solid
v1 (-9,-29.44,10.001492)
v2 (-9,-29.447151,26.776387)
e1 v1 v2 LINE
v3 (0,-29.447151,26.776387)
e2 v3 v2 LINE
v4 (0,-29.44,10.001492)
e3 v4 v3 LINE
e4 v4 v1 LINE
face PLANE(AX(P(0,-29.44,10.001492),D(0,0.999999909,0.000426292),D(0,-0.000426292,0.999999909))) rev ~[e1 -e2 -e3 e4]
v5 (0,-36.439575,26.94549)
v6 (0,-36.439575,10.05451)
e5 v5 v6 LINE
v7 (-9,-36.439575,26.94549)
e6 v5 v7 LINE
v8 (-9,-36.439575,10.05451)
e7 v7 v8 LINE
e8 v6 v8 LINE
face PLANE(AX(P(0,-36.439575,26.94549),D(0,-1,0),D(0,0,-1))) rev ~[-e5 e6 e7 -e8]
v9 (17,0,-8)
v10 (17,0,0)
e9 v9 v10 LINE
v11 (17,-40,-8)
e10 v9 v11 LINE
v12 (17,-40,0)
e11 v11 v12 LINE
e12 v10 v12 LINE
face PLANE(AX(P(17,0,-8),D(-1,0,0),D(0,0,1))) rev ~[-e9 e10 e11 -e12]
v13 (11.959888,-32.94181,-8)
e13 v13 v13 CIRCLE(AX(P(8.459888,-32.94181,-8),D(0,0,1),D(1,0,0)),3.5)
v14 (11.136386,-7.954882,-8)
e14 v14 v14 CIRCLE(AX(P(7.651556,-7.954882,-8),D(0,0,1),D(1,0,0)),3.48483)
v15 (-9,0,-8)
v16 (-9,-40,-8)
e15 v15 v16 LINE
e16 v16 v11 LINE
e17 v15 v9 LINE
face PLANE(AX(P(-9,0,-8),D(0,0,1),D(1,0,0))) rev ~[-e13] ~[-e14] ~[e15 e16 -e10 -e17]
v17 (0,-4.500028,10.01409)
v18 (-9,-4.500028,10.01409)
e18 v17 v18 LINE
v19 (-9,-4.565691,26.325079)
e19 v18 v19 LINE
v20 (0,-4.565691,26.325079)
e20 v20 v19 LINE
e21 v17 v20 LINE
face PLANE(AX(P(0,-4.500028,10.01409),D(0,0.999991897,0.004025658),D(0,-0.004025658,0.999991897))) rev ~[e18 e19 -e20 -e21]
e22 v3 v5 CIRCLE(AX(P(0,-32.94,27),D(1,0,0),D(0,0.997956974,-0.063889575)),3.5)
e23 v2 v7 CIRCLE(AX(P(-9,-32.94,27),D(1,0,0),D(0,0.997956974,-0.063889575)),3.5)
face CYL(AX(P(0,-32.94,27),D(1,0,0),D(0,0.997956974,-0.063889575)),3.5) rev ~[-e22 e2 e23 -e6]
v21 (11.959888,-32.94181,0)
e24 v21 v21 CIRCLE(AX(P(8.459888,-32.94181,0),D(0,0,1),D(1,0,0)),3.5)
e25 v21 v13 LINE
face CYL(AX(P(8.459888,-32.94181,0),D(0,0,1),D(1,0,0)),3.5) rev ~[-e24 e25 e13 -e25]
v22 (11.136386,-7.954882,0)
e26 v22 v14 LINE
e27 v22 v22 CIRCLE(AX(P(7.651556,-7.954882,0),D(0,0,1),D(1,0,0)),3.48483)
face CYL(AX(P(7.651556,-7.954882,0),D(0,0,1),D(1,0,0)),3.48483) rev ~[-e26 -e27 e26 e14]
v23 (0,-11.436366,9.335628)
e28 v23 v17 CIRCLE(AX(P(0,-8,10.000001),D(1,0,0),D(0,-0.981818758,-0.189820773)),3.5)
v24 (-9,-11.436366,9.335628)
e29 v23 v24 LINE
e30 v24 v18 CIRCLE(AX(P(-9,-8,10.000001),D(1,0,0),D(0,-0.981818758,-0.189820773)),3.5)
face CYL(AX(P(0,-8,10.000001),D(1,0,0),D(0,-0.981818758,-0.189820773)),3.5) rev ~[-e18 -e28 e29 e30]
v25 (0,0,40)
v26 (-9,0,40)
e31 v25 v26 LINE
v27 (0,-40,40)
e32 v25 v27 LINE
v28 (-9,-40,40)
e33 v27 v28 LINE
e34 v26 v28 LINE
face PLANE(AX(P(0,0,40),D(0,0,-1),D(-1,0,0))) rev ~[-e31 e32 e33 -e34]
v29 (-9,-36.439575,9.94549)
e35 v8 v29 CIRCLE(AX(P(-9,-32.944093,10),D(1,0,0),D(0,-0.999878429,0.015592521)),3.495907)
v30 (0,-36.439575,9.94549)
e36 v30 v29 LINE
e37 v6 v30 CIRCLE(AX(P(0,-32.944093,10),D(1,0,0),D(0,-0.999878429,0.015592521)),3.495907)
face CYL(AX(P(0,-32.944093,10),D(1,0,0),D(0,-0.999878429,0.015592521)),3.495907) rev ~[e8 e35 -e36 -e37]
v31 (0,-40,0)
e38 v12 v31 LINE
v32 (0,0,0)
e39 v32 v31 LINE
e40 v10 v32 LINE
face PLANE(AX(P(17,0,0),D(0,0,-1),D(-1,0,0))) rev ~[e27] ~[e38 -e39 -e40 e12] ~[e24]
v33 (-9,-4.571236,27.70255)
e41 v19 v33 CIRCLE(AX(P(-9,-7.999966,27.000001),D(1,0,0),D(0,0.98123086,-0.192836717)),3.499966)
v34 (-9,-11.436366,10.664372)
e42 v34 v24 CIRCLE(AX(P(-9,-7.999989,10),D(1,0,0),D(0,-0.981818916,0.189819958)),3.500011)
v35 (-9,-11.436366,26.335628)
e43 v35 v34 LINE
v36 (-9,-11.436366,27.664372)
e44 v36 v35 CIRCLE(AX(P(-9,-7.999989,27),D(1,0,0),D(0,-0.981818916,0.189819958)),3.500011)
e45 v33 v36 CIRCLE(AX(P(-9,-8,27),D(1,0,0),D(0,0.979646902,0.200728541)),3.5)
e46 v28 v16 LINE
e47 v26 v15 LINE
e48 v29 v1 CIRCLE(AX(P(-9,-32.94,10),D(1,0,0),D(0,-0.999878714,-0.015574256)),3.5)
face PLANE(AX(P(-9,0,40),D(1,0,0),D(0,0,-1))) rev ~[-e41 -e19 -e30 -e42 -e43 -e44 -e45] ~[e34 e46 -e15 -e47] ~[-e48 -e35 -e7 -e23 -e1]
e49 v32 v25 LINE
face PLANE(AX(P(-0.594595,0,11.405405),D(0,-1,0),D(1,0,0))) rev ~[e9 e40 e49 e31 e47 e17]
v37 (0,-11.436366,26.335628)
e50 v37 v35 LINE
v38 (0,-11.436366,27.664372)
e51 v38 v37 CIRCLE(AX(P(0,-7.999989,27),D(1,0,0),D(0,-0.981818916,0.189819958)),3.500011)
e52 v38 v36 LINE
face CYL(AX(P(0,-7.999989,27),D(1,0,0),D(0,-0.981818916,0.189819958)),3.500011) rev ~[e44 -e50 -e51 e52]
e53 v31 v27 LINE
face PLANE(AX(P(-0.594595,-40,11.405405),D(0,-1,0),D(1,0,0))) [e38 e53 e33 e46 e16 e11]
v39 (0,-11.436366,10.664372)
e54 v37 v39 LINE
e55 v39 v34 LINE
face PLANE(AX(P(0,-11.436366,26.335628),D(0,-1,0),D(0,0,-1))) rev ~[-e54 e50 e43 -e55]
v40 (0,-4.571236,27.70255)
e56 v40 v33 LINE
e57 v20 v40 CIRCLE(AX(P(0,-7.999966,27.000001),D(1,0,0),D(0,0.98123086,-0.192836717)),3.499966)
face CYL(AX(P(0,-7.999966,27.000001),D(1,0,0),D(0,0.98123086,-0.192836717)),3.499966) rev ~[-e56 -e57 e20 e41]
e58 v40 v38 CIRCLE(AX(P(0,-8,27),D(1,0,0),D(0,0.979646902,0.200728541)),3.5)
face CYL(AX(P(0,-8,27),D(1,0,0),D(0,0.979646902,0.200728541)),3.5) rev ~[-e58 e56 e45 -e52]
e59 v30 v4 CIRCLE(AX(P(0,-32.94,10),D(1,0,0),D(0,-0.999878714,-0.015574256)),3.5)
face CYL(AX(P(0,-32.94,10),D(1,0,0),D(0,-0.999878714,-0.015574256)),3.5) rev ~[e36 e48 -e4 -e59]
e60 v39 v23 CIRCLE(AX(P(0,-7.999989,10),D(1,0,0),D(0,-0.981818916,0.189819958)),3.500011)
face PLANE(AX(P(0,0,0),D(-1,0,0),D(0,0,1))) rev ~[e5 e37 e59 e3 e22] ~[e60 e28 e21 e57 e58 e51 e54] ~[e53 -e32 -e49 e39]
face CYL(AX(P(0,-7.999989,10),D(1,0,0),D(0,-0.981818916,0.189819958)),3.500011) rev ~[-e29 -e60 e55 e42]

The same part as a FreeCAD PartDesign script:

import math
import FreeCAD as App
import Part
import Sketcher
from FreeCAD import Vector

doc = App.newDocument("Part")
body = doc.addObject("PartDesign::Body", "Body")

# Sketch on XZ plane
sketch1 = doc.addObject("Sketcher::SketchObject", "Sketch")
body.addObject(sketch1)
sketch1.AttachmentSupport = (doc.XZ_Plane, [""])
sketch1.MapMode = "FlatFace"
sketch1.addGeometry([
    Part.LineSegment(Vector(0, 0, 0), Vector(0, 40, 0)),  # 0
    Part.LineSegment(Vector(0, 40, 0), Vector(-9, 40, 0)),  # 1
    Part.LineSegment(Vector(-9, 40, 0), Vector(-9, -8, 0)),  # 2
    Part.LineSegment(Vector(-9, -8, 0), Vector(17, -8, 0)),  # 3
    Part.LineSegment(Vector(17, -8, 0), Vector(17, 0, 0)),  # 4
    Part.LineSegment(Vector(17, 0, 0), Vector(0, 0, 0)),  # 5
], False)
sketch1.addConstraint([
    Sketcher.Constraint("Coincident", 0, 2, 1, 1),
    Sketcher.Constraint("Coincident", 1, 2, 2, 1),
    Sketcher.Constraint("Coincident", 2, 2, 3, 1),
    Sketcher.Constraint("Coincident", 3, 2, 4, 1),
    Sketcher.Constraint("Coincident", 4, 2, 5, 1),
    Sketcher.Constraint("Coincident", 5, 2, 0, 1),
    Sketcher.Constraint("Vertical", 0),
    Sketcher.Constraint("Horizontal", 1),
    Sketcher.Constraint("Vertical", 2),
    Sketcher.Constraint("Horizontal", 3),
    Sketcher.Constraint("Vertical", 4),
    Sketcher.Constraint("Horizontal", 5),
    Sketcher.Constraint("Coincident", 5, 2, -1, 1),
    Sketcher.Constraint("DistanceX", 1, 2, 1, 1, 9.0),
    Sketcher.Constraint("DistanceX", 3, 1, 3, 2, 26.0),
    Sketcher.Constraint("DistanceY", 0, 1, 0, 2, 40.0),
    Sketcher.Constraint("DistanceY", 2, 2, 2, 1, 48.0),
])
pad1 = doc.addObject("PartDesign::Pad", "Pad")
body.addObject(pad1)
pad1.Profile = sketch1
pad1.Length = 40

# Sketch on XY plane
sketch2 = doc.addObject("Sketcher::SketchObject", "Sketch001")
body.addObject(sketch2)
sketch2.AttachmentSupport = (doc.XY_Plane, [""])
sketch2.MapMode = "FlatFace"
sketch2.addGeometry([
    Part.Circle(Vector(8.5, -32.9, 0), Vector(0, 0, 1), 3.5),
    Part.Circle(Vector(7.7, -8, 0), Vector(0, 0, 1), 3.5),
], False)
sketch2.addConstraint([
    Sketcher.Constraint("Diameter", 0, 7.0),
    Sketcher.Constraint("Diameter", 1, 6.96966),
    Sketcher.Constraint("DistanceY", 0, 3, -1, 1, 32.94181),
    Sketcher.Constraint("DistanceY", 1, 3, -1, 1, 7.954882),
    Sketcher.Constraint("DistanceX", 1, 3, 0, 3, 0.808332),
    Sketcher.Constraint("DistanceX", -1, 1, 0, 3, 8.459888),
])
pocket1 = doc.addObject("PartDesign::Pocket", "Pocket")
body.addObject(pocket1)
pocket1.Profile = sketch2
pocket1.Length = 25

# Sketch on YZ plane
sketch3 = doc.addObject("Sketcher::SketchObject", "Sketch002")
body.addObject(sketch3)
sketch3.AttachmentSupport = (doc.YZ_Plane, [""])
sketch3.MapMode = "FlatFace"
sketch3.addGeometry([
    Part.LineSegment(Vector(-29.44, 10.001492, 0), Vector(-29.447151, 26.776387, 0)),  # 0
    Part.ArcOfCircle(Part.Circle(Vector(-32.94, 27, 0), Vector(0, 0, 1), 3.5), math.radians(-3.663098), math.radians(180.892385)),  # 1
    Part.LineSegment(Vector(-36.439575, 26.94549, 0), Vector(-36.439575, 10.05451, 0)),  # 2
    Part.ArcOfCircle(Part.Circle(Vector(-32.944093, 10, 0), Vector(0, 0, 1), 3.495907), math.radians(179.106578), math.radians(180.893422)),  # 3
    Part.ArcOfCircle(Part.Circle(Vector(-32.94, 10, 0), Vector(0, 0, 1), 3.5), math.radians(-179.107625), math.radians(0.024426)),  # 4
    Part.ArcOfCircle(Part.Circle(Vector(-7.999989, 10, 0), Vector(0, 0, 1), 3.500011), math.radians(169.057723), math.radians(190.942277)),  # 5
    Part.ArcOfCircle(Part.Circle(Vector(-8, 10.000001, 0), Vector(0, 0, 1), 3.5), math.radians(-169.057675), math.radians(0.230644)),  # 6
    Part.LineSegment(Vector(-4.500028, 10.01409, 0), Vector(-4.565691, 26.325079, 0)),  # 7
    Part.ArcOfCircle(Part.Circle(Vector(-7.999966, 27.000001, 0), Vector(0, 0, 1), 3.499966), math.radians(-11.118378), math.radians(11.579663)),  # 8
    Part.ArcOfCircle(Part.Circle(Vector(-8, 27, 0), Vector(0, 0, 1), 3.5), math.radians(11.579565), math.radians(169.057689)),  # 9
    Part.ArcOfCircle(Part.Circle(Vector(-7.999989, 27, 0), Vector(0, 0, 1), 3.500011), math.radians(169.057723), math.radians(190.942277)),  # 10
    Part.LineSegment(Vector(-11.436366, 26.335628, 0), Vector(-11.436366, 10.664372, 0)),  # 11
], False)
sketch3.addConstraint([
    Sketcher.Constraint("Coincident", 0, 2, 1, 1),
    Sketcher.Constraint("Coincident", 1, 2, 2, 1),
    Sketcher.Constraint("Coincident", 2, 2, 3, 1),
    Sketcher.Constraint("Coincident", 3, 2, 4, 1),
    Sketcher.Constraint("Coincident", 4, 2, 0, 1),
    Sketcher.Constraint("Coincident", 5, 2, 6, 1),
    Sketcher.Constraint("Coincident", 6, 2, 7, 1),
    Sketcher.Constraint("Coincident", 7, 2, 8, 1),
    Sketcher.Constraint("Coincident", 8, 2, 9, 1),
    Sketcher.Constraint("Coincident", 9, 2, 10, 1),
    Sketcher.Constraint("Coincident", 10, 2, 11, 1),
    Sketcher.Constraint("Coincident", 11, 2, 5, 1),
    Sketcher.Constraint("Vertical", 2),
    Sketcher.Constraint("Vertical", 11),
    Sketcher.Constraint("Radius", 1, 3.5),
    Sketcher.Constraint("Radius", 4, 3.5),
    Sketcher.Constraint("Radius", 6, 3.5),
    Sketcher.Constraint("Radius", 9, 3.5),
    Sketcher.Constraint("DistanceY", -1, 1, 1, 3, 27.0),
    Sketcher.Constraint("DistanceY", -1, 1, 3, 3, 10.0),
    Sketcher.Constraint("DistanceY", -1, 1, 4, 3, 10.0),
    Sketcher.Constraint("DistanceY", -1, 1, 5, 3, 10.0),
    Sketcher.Constraint("DistanceX", 6, 3, -1, 1, 8.0),
    Sketcher.Constraint("DistanceY", -1, 1, 6, 3, 10.000001),
    Sketcher.Constraint("DistanceY", -1, 1, 8, 3, 27.000001),
    Sketcher.Constraint("DistanceX", 9, 3, -1, 1, 8.0),
    Sketcher.Constraint("DistanceY", -1, 1, 9, 3, 27.0),
    Sketcher.Constraint("DistanceY", -1, 1, 10, 3, 27.0),
    Sketcher.Constraint("DistanceY", 3, 2, 1, 2, 17.0),
    Sketcher.Constraint("DistanceX", 1, 3, -1, 1, 32.94),
    Sketcher.Constraint("DistanceX", 4, 3, -1, 1, 32.94),
    Sketcher.Constraint("Radius", 5, 3.500011),
    Sketcher.Constraint("Radius", 10, 3.500011),
    Sketcher.Constraint("Radius", 3, 3.495907),
    Sketcher.Constraint("Radius", 8, 3.499966),
    Sketcher.Constraint("DistanceY", 3, 2, 4, 2, 0.056002),
    Sketcher.Constraint("DistanceY", 2, 2, 2, 1, 16.89098),
    Sketcher.Constraint("DistanceX", 5, 2, 8, 3, 3.4364),
    Sketcher.Constraint("DistanceX", 9, 2, 8, 3, 3.4364),
    Sketcher.Constraint("DistanceX", 10, 2, 8, 3, 3.4364),
    Sketcher.Constraint("Distance", 7, 16.311121),
    Sketcher.Constraint("DistanceX", 0, 2, -1, 1, 29.447151),
    Sketcher.Constraint("DistanceY", -1, 1, 6, 2, 10.01409),
    Sketcher.Constraint("DistanceY", -1, 1, 8, 2, 27.70255),
])
pocket2 = doc.addObject("PartDesign::Pocket", "Pocket001")
body.addObject(pocket2)
pocket2.Profile = sketch3
pocket2.Length = 25

doc.recompute()
